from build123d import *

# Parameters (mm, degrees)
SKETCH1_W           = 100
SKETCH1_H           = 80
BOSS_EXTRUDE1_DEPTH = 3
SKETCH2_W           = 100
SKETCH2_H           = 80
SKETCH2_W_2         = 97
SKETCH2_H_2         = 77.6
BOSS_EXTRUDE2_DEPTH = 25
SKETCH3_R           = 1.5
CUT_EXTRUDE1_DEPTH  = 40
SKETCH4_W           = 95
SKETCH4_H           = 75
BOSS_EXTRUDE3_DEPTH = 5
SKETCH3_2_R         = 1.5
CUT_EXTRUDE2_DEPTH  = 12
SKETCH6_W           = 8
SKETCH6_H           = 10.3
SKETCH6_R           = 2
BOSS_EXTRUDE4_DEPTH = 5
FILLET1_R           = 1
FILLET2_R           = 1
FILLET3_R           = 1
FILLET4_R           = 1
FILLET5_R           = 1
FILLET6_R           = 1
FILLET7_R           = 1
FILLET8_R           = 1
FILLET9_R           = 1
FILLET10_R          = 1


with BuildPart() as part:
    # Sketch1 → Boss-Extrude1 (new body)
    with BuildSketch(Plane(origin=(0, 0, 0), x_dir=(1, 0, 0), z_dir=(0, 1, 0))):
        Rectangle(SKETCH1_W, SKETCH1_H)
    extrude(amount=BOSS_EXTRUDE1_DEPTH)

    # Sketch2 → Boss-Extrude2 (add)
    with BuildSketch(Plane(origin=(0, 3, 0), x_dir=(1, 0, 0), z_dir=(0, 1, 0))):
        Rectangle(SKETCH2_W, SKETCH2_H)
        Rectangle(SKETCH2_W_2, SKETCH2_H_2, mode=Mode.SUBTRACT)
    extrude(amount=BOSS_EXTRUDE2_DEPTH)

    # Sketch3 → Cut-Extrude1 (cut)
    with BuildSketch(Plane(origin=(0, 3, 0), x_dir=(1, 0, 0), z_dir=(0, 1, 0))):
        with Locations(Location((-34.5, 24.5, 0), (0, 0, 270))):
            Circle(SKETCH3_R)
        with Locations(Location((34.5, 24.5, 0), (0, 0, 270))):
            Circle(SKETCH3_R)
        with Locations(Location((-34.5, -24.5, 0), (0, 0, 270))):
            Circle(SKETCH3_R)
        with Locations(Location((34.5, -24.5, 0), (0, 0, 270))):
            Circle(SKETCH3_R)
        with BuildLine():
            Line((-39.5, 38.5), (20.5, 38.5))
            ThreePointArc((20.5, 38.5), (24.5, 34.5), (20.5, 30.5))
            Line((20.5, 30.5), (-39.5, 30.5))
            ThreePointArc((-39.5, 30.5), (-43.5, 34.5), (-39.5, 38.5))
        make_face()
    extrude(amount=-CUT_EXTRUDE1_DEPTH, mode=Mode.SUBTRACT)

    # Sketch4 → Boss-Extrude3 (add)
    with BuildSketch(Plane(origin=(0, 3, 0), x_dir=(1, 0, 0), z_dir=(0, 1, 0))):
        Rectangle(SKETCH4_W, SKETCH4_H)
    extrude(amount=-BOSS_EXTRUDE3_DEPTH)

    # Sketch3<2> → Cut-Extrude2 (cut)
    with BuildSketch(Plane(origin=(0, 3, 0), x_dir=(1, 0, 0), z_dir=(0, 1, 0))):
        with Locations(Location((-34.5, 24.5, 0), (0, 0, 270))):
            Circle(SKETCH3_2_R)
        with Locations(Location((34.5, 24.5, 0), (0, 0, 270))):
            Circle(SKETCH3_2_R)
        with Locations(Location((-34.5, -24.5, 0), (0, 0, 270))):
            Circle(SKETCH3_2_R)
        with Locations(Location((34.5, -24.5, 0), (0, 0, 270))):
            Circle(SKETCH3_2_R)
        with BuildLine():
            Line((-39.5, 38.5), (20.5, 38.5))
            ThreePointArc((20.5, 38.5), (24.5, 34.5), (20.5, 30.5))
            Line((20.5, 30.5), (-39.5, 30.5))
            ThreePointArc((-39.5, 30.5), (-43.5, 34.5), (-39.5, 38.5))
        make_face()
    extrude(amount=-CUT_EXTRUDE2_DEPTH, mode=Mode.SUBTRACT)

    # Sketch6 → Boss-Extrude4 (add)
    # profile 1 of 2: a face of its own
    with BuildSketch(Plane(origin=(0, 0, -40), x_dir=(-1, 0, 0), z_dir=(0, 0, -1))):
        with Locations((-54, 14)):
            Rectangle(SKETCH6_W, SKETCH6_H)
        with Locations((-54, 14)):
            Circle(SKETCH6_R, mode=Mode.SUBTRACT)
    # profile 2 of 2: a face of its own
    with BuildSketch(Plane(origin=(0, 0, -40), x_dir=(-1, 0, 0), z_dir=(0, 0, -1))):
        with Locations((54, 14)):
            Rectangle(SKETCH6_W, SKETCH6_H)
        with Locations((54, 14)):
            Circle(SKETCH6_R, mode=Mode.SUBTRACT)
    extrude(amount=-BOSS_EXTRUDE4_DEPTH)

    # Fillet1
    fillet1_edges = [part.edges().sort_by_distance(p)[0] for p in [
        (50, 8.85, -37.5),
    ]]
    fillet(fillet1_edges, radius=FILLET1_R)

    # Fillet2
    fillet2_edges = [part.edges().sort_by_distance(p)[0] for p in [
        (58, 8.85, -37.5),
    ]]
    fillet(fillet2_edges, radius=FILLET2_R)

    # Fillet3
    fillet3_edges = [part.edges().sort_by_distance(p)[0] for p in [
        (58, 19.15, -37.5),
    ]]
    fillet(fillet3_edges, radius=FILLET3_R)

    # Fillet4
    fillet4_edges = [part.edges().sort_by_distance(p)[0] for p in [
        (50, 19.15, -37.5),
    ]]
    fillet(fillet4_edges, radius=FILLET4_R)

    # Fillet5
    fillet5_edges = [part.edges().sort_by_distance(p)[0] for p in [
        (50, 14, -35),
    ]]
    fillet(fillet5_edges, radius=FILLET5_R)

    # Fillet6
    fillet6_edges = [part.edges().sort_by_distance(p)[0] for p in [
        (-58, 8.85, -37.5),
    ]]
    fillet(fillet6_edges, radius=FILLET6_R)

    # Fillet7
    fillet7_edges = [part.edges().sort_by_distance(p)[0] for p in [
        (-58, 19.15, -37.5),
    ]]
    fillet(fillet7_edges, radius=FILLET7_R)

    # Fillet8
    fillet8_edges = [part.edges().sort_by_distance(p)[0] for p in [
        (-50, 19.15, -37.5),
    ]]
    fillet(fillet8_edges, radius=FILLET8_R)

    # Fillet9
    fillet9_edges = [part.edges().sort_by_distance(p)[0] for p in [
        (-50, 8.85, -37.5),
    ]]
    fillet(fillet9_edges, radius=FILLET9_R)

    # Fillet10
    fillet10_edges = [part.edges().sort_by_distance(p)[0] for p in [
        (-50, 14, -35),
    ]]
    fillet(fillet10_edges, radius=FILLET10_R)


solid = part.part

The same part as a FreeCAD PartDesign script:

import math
import FreeCAD as App
import Part
import Sketcher
Q = App.Units.Quantity


def edges_at(feature, points):
    """Names of the edges that pass closest to the given points."""
    edges = feature.Shape.Edges
    near = lambda p: min(range(len(edges)), key=lambda i: edges[i].distToShape(Part.Vertex(*p))[0])
    return sorted({f"Edge{near(p) + 1}" for p in points})

doc = App.newDocument("Part")
body = doc.addObject("PartDesign::Body", "Body")

sketch1 = body.newObject("Sketcher::SketchObject", "Sketch")
sketch1.AttachmentSupport = (doc.getObject("XZ_Plane"), [""])
sketch1.MapMode = "FlatFace"
sketch1.addGeometry(Part.LineSegment(App.Vector(-50, -40, 0), App.Vector(-50, 40, 0)), False)
sketch1.addGeometry(Part.LineSegment(App.Vector(-50, 40, 0), App.Vector(50, 40, 0)), False)
sketch1.addGeometry(Part.LineSegment(App.Vector(50, 40, 0), App.Vector(50, -40, 0)), False)
sketch1.addGeometry(Part.LineSegment(App.Vector(50, -40, 0), App.Vector(-50, -40, 0)), False)
sketch1.addConstraint(Sketcher.Constraint("Coincident", 0, 2, 1, 1))
sketch1.addConstraint(Sketcher.Constraint("Coincident", 1, 2, 2, 1))
sketch1.addConstraint(Sketcher.Constraint("Coincident", 2, 2, 3, 1))
sketch1.addConstraint(Sketcher.Constraint("Coincident", 3, 2, 0, 1))
sketch1.addConstraint(Sketcher.Constraint("Vertical", 0))
sketch1.addConstraint(Sketcher.Constraint("Horizontal", 1))
sketch1.addConstraint(Sketcher.Constraint("Vertical", 2))
sketch1.addConstraint(Sketcher.Constraint("Horizontal", 3))
sketch1.addConstraint(Sketcher.Constraint("Symmetric", 0, 2, 2, 2, -1, 1))
sketch1.addConstraint(Sketcher.Constraint("DistanceX", 1, 1, 1, 2, Q("100 mm")))
sketch1.addConstraint(Sketcher.Constraint("DistanceY", 0, 1, 0, 2, Q("80 mm")))
pad1 = body.newObject("PartDesign::Pad", "Pad")
pad1.Profile = sketch1
pad1.Length = 3
pad1.Reversed = True

sketch2 = body.newObject("Sketcher::SketchObject", "Sketch001")
sketch2.AttachmentSupport = (doc.getObject("XZ_Plane"), [""])
sketch2.MapMode = "FlatFace"
sketch2.AttachmentOffset = App.Placement(App.Vector(0, 0, -3), App.Rotation())
sketch2.addGeometry(Part.LineSegment(App.Vector(-50, -40, 0), App.Vector(-50, 40, 0)), False)
sketch2.addGeometry(Part.LineSegment(App.Vector(-50, 40, 0), App.Vector(50, 40, 0)), False)
sketch2.addGeometry(Part.LineSegment(App.Vector(50, 40, 0), App.Vector(50, -40, 0)), False)
sketch2.addGeometry(Part.LineSegment(App.Vector(50, -40, 0), App.Vector(-50, -40, 0)), False)
sketch2.addGeometry(Part.LineSegment(App.Vector(48, 39, 0), App.Vector(-48, 39, 0)), False)
sketch2.addGeometry(Part.LineSegment(App.Vector(-48, 39, 0), App.Vector(-48, -39, 0)), False)
sketch2.addGeometry(Part.LineSegment(App.Vector(-48, -39, 0), App.Vector(48, -39, 0)), False)
sketch2.addGeometry(Part.LineSegment(App.Vector(48, -39, 0), App.Vector(48, 39, 0)), False)
sketch2.addConstraint(Sketcher.Constraint("Coincident", 0, 2, 1, 1))
sketch2.addConstraint(Sketcher.Constraint("Coincident", 1, 2, 2, 1))
sketch2.addConstraint(Sketcher.Constraint("Coincident", 2, 2, 3, 1))
sketch2.addConstraint(Sketcher.Constraint("Coincident", 3, 2, 0, 1))
sketch2.addConstraint(Sketcher.Constraint("Coincident", 4, 2, 5, 1))
sketch2.addConstraint(Sketcher.Constraint("Coincident", 5, 2, 6, 1))
sketch2.addConstraint(Sketcher.Constraint("Coincident", 6, 2, 7, 1))
sketch2.addConstraint(Sketcher.Constraint("Coincident", 7, 2, 4, 1))
sketch2.addConstraint(Sketcher.Constraint("Vertical", 0))
sketch2.addConstraint(Sketcher.Constraint("Horizontal", 1))
sketch2.addConstraint(Sketcher.Constraint("Vertical", 2))
sketch2.addConstraint(Sketcher.Constraint("Horizontal", 3))
sketch2.addConstraint(Sketcher.Constraint("Horizontal", 4))
sketch2.addConstraint(Sketcher.Constraint("Vertical", 5))
sketch2.addConstraint(Sketcher.Constraint("Horizontal", 6))
sketch2.addConstraint(Sketcher.Constraint("Vertical", 7))
sketch2.addConstraint(Sketcher.Constraint("Symmetric", 0, 2, 2, 2, -1, 1))
sketch2.addConstraint(Sketcher.Constraint("Symmetric", 4, 2, 6, 2, -1, 1))
sketch2.addConstraint(Sketcher.Constraint("DistanceX", 1, 1, 1, 2, Q("100 mm")))
sketch2.addConstraint(Sketcher.Constraint("DistanceX", 4, 2, 4, 1, Q("97 mm")))
sketch2.addConstraint(Sketcher.Constraint("DistanceY", 0, 1, 0, 2, Q("80 mm")))
sketch2.addConstraint(Sketcher.Constraint("DistanceY", 5, 2, 5, 1, Q("77.6 mm")))
pad2 = body.newObject("PartDesign::Pad", "Pad001")
pad2.Profile = sketch2
pad2.Length = 25
pad2.Reversed = True

sketch3 = body.newObject("Sketcher::SketchObject", "Sketch002")
sketch3.AttachmentSupport = (doc.getObject("XZ_Plane"), [""])
sketch3.MapMode = "FlatFace"
sketch3.AttachmentOffset = App.Placement(App.Vector(0, 0, -3), App.Rotation())
sketch3.addGeometry(Part.Circle(App.Vector(-34.5, -24.5, 0), App.Vector(0, 0, 1), 1.5), False)
sketch3.addGeometry(Part.Circle(App.Vector(34.5, -24.5, 0), App.Vector(0, 0, 1), 1.5), False)
sketch3.addGeometry(Part.Circle(App.Vector(-34.5, 24.5, 0), App.Vector(0, 0, 1), 1.5), False)
sketch3.addGeometry(Part.Circle(App.Vector(34.5, 24.5, 0), App.Vector(0, 0, 1), 1.5), False)
sketch3.addGeometry(Part.LineSegment(App.Vector(20.5, -38.5, 0), App.Vector(-39.5, -38.5, 0)), False)
sketch3.addGeometry(Part.ArcOfCircle(Part.Circle(App.Vector(-39.5, -34.5, 0), App.Vector(0, 0, 1), 4), math.radians(90), math.radians(270)), False)
sketch3.addGeometry(Part.LineSegment(App.Vector(-39.5, -30.5, 0), App.Vector(20.5, -30.5, 0)), False)
sketch3.addGeometry(Part.ArcOfCircle(Part.Circle(App.Vector(20.5, -34.5, 0), App.Vector(0, 0, 1), 4), math.radians(-90), math.radians(90)), False)
sketch3.addConstraint(Sketcher.Constraint("Tangent", 4, 2, 5, 2))
sketch3.addConstraint(Sketcher.Constraint("Tangent", 5, 1, 6, 1))
sketch3.addConstraint(Sketcher.Constraint("Tangent", 6, 2, 7, 2))
sketch3.addConstraint(Sketcher.Constraint("Tangent", 7, 1, 4, 1))
sketch3.addConstraint(Sketcher.Constraint("Horizontal", 4))
sketch3.addConstraint(Sketcher.Constraint("Horizontal", 6))
sketch3.addConstraint(Sketcher.Constraint("Equal", 0, 1))
sketch3.addConstraint(Sketcher.Constraint("Equal", 1, 2))
sketch3.addConstraint(Sketcher.Constraint("Equal", 2, 3))
sketch3.addConstraint(Sketcher.Constraint("Symmetric", 1, 3, 2, 3, -1, 1))
sketch3.addConstraint(Sketcher.Constraint("Symmetric", 0, 3, 3, 3, -1, 1))
sketch3.addConstraint(Sketcher.Constraint("Symmetric", 0, 3, 1, 3, -2))
sketch3.addConstraint(Sketcher.Constraint("Diameter", 0, Q("3 mm")))
sketch3.addConstraint(Sketcher.Constraint("Radius", 5, Q("4 mm")))
sketch3.addConstraint(Sketcher.Constraint("DistanceX", 4, 2, 4, 1, Q("60 mm")))
sketch3.addConstraint(Sketcher.Constraint("DistanceX", 0, 3, 1, 3, Q("69 mm")))
sketch3.addConstraint(Sketcher.Constraint("DistanceY", 0, 3, 2, 3, Q("49 mm")))
sketch3.addConstraint(Sketcher.Constraint("DistanceX", 5, 3, 0, 3, Q("5 mm")))
sketch3.addConstraint(Sketcher.Constraint("DistanceY", 5, 3, 0, 3, Q("10 mm")))
pocket1 = body.newObject("PartDesign::Pocket", "Pocket")
pocket1.Profile = sketch3
pocket1.Length = 40
pocket1.Reversed = True

sketch4 = body.newObject("Sketcher::SketchObject", "Sketch003")
sketch4.AttachmentSupport = (doc.getObject("XZ_Plane"), [""])
sketch4.MapMode = "FlatFace"
sketch4.AttachmentOffset = App.Placement(App.Vector(0, 0, -3), App.Rotation())
sketch4.addGeometry(Part.LineSegment(App.Vector(-48, -38, 0), App.Vector(-48, 38, 0)), False)
sketch4.addGeometry(Part.LineSegment(App.Vector(-48, 38, 0), App.Vector(48, 38, 0)), False)
sketch4.addGeometry(Part.LineSegment(App.Vector(48, 38, 0), App.Vector(48, -38, 0)), False)
sketch4.addGeometry(Part.LineSegment(App.Vector(48, -38, 0), App.Vector(-48, -38, 0)), False)
sketch4.addConstraint(Sketcher.Constraint("Coincident", 0, 2, 1, 1))
sketch4.addConstraint(Sketcher.Constraint("Coincident", 1, 2, 2, 1))
sketch4.addConstraint(Sketcher.Constraint("Coincident", 2, 2, 3, 1))
sketch4.addConstraint(Sketcher.Constraint("Coincident", 3, 2, 0, 1))
sketch4.addConstraint(Sketcher.Constraint("Vertical", 0))
sketch4.addConstraint(Sketcher.Constraint("Horizontal", 1))
sketch4.addConstraint(Sketcher.Constraint("Vertical", 2))
sketch4.addConstraint(Sketcher.Constraint("Horizontal", 3))
sketch4.addConstraint(Sketcher.Constraint("Symmetric", 0, 2, 2, 2, -1, 1))
sketch4.addConstraint(Sketcher.Constraint("DistanceX", 1, 1, 1, 2, Q("95 mm")))
sketch4.addConstraint(Sketcher.Constraint("DistanceY", 0, 1, 0, 2, Q("75 mm")))
pad3 = body.newObject("PartDesign::Pad", "Pad002")
pad3.Profile = sketch4
pad3.Length = 5

sketch5 = body.newObject("Sketcher::SketchObject", "Sketch004")
sketch5.AttachmentSupport = (doc.getObject("XZ_Plane"), [""])
sketch5.MapMode = "FlatFace"
sketch5.AttachmentOffset = App.Placement(App.Vector(0, 0, -3), App.Rotation())
sketch5.addGeometry(Part.Circle(App.Vector(-34.5, -24.5, 0), App.Vector(0, 0, 1), 1.5), False)
sketch5.addGeometry(Part.Circle(App.Vector(34.5, -24.5, 0), App.Vector(0, 0, 1), 1.5), False)
sketch5.addGeometry(Part.Circle(App.Vector(-34.5, 24.5, 0), App.Vector(0, 0, 1), 1.5), False)
sketch5.addGeometry(Part.Circle(App.Vector(34.5, 24.5, 0), App.Vector(0, 0, 1), 1.5), False)
sketch5.addGeometry(Part.LineSegment(App.Vector(20.5, -38.5, 0), App.Vector(-39.5, -38.5, 0)), False)
sketch5.addGeometry(Part.ArcOfCircle(Part.Circle(App.Vector(-39.5, -34.5, 0), App.Vector(0, 0, 1), 4), math.radians(90), math.radians(270)), False)
sketch5.addGeometry(Part.LineSegment(App.Vector(-39.5, -30.5, 0), App.Vector(20.5, -30.5, 0)), False)
sketch5.addGeometry(Part.ArcOfCircle(Part.Circle(App.Vector(20.5, -34.5, 0), App.Vector(0, 0, 1), 4), math.radians(-90), math.radians(90)), False)
sketch5.addConstraint(Sketcher.Constraint("Tangent", 4, 2, 5, 2))
sketch5.addConstraint(Sketcher.Constraint("Tangent", 5, 1, 6, 1))
sketch5.addConstraint(Sketcher.Constraint("Tangent", 6, 2, 7, 2))
sketch5.addConstraint(Sketcher.Constraint("Tangent", 7, 1, 4, 1))
sketch5.addConstraint(Sketcher.Constraint("Horizontal", 4))
sketch5.addConstraint(Sketcher.Constraint("Horizontal", 6))
sketch5.addConstraint(Sketcher.Constraint("Equal", 0, 1))
sketch5.addConstraint(Sketcher.Constraint("Equal", 1, 2))
sketch5.addConstraint(Sketcher.Constraint("Equal", 2, 3))
sketch5.addConstraint(Sketcher.Constraint("Symmetric", 1, 3, 2, 3, -1, 1))
sketch5.addConstraint(Sketcher.Constraint("Symmetric", 0, 3, 3, 3, -1, 1))
sketch5.addConstraint(Sketcher.Constraint("Symmetric", 0, 3, 1, 3, -2))
sketch5.addConstraint(Sketcher.Constraint("Diameter", 0, Q("3 mm")))
sketch5.addConstraint(Sketcher.Constraint("Radius", 5, Q("4 mm")))
sketch5.addConstraint(Sketcher.Constraint("DistanceX", 4, 2, 4, 1, Q("60 mm")))
sketch5.addConstraint(Sketcher.Constraint("DistanceX", 0, 3, 1, 3, Q("69 mm")))
sketch5.addConstraint(Sketcher.Constraint("DistanceY", 0, 3, 2, 3, Q("49 mm")))
sketch5.addConstraint(Sketcher.Constraint("DistanceX", 5, 3, 0, 3, Q("5 mm")))
sketch5.addConstraint(Sketcher.Constraint("DistanceY", 5, 3, 0, 3, Q("10 mm")))
pocket2 = body.newObject("PartDesign::Pocket", "Pocket001")
pocket2.Profile = sketch5
pocket2.Length = 12
pocket2.Reversed = True

sketch6 = body.newObject("Sketcher::SketchObject", "Sketch005")
sketch6.AttachmentSupport = (doc.getObject("XY_Plane"), [""])
sketch6.MapMode = "FlatFace"
sketch6.AttachmentOffset = App.Placement(App.Vector(0, 0, -40), App.Rotation())
sketch6.addGeometry(Part.LineSegment(App.Vector(58, 19.1, 0), App.Vector(58, 8.8, 0)), False)
sketch6.addGeometry(Part.LineSegment(App.Vector(58, 8.8, 0), App.Vector(50, 8.8, 0)), False)
sketch6.addGeometry(Part.LineSegment(App.Vector(50, 8.8, 0), App.Vector(50, 19.1, 0)), False)
sketch6.addGeometry(Part.LineSegment(App.Vector(50, 19.1, 0), App.Vector(58, 19.1, 0)), False)
sketch6.addGeometry(Part.Circle(App.Vector(54, 14, 0), App.Vector(0, 0, 1), 2), False)
sketch6.addGeometry(Part.LineSegment(App.Vector(-50, 19.1, 0), App.Vector(-50, 8.8, 0)), False)
sketch6.addGeometry(Part.LineSegment(App.Vector(-50, 8.8, 0), App.Vector(-58, 8.8, 0)), False)
sketch6.addGeometry(Part.LineSegment(App.Vector(-58, 8.8, 0), App.Vector(-58, 19.1, 0)), False)
sketch6.addGeometry(Part.LineSegment(App.Vector(-58, 19.1, 0), App.Vector(-50, 19.1, 0)), False)
sketch6.addGeometry(Part.Circle(App.Vector(-54, 14, 0), App.Vector(0, 0, 1), 2), False)
sketch6.addConstraint(Sketcher.Constraint("Coincident", 0, 2, 1, 1))
sketch6.addConstraint(Sketcher.Constraint("Coincident", 1, 2, 2, 1))
sketch6.addConstraint(Sketcher.Constraint("Coincident", 2, 2, 3, 1))
sketch6.addConstraint(Sketcher.Constraint("Coincident", 3, 2, 0, 1))
sketch6.addConstraint(Sketcher.Constraint("Coincident", 5, 2, 6, 1))
sketch6.addConstraint(Sketcher.Constraint("Coincident", 6, 2, 7, 1))
sketch6.addConstraint(Sketcher.Constraint("Coincident", 7, 2, 8, 1))
sketch6.addConstraint(Sketcher.Constraint("Coincident", 8, 2, 5, 1))
sketch6.addConstraint(Sketcher.Constraint("Vertical", 0))
sketch6.addConstraint(Sketcher.Constraint("Horizontal", 1))
sketch6.addConstraint(Sketcher.Constraint("Vertical", 2))
sketch6.addConstraint(Sketcher.Constraint("Horizontal", 3))
sketch6.addConstraint(Sketcher.Constraint("Vertical", 5))
sketch6.addConstraint(Sketcher.Constraint("Horizontal", 6))
sketch6.addConstraint(Sketcher.Constraint("Vertical", 7))
sketch6.addConstraint(Sketcher.Constraint("Horizontal", 8))
sketch6.addConstraint(Sketcher.Constraint("Equal", 4, 9))
sketch6.addConstraint(Sketcher.Constraint("Symmetric", 4, 3, 9, 3, -2))
sketch6.addConstraint(Sketcher.Constraint("Symmetric", 1, 2, 5, 2, -2))
sketch6.addConstraint(Sketcher.Constraint("Symmetric", 3, 2, 7, 2, -2))
sketch6.addConstraint(Sketcher.Constraint("Diameter", 4, Q("4 mm")))
sketch6.addConstraint(Sketcher.Constraint("DistanceX", 1, 2, 1, 1, Q("8 mm")))
sketch6.addConstraint(Sketcher.Constraint("DistanceY", 0, 2, 0, 1, Q("10.3 mm")))
sketch6.addConstraint(Sketcher.Constraint("DistanceX", -1, 1, 4, 3, Q("54 mm")))
sketch6.addConstraint(Sketcher.Constraint("DistanceY", -1, 1, 4, 3, Q("14 mm")))
sketch6.addConstraint(Sketcher.Constraint("DistanceX", -1, 1, 0, 2, Q("58 mm")))
sketch6.addConstraint(Sketcher.Constraint("DistanceY", -1, 1, 0, 2, Q("8.85 mm")))
pad4 = body.newObject("PartDesign::Pad", "Pad003")
pad4.Profile = sketch6
pad4.Length = 5
doc.recompute()

fillet = body.newObject("PartDesign::Fillet", "Fillet")
fillet.Base = (pad4, edges_at(pad4, [(50, 8.85, -37.5)]))
fillet.Radius = 1
doc.recompute()

fillet2 = body.newObject("PartDesign::Fillet", "Fillet001")
fillet2.Base = (fillet, edges_at(fillet, [(58, 8.85, -37.5)]))
fillet2.Radius = 1
doc.recompute()

fillet3 = body.newObject("PartDesign::Fillet", "Fillet002")
fillet3.Base = (fillet2, edges_at(fillet2, [(58, 19.15, -37.5)]))
fillet3.Radius = 1
doc.recompute()

fillet4 = body.newObject("PartDesign::Fillet", "Fillet003")
fillet4.Base = (fillet3, edges_at(fillet3, [(50, 19.15, -37.5)]))
fillet4.Radius = 1
doc.recompute()

fillet5 = body.newObject("PartDesign::Fillet", "Fillet004")
fillet5.Base = (fillet4, edges_at(fillet4, [(50, 14, -35)]))
fillet5.Radius = 1
doc.recompute()

fillet6 = body.newObject("PartDesign::Fillet", "Fillet005")
fillet6.Base = (fillet5, edges_at(fillet5, [(-58, 8.85, -37.5)]))
fillet6.Radius = 1
doc.recompute()

fillet7 = body.newObject("PartDesign::Fillet", "Fillet006")
fillet7.Base = (fillet6, edges_at(fillet6, [(-58, 19.15, -37.5)]))
fillet7.Radius = 1
doc.recompute()

fillet8 = body.newObject("PartDesign::Fillet", "Fillet007")
fillet8.Base = (fillet7, edges_at(fillet7, [(-50, 19.15, -37.5)]))
fillet8.Radius = 1
doc.recompute()

fillet9 = body.newObject("PartDesign::Fillet", "Fillet008")
fillet9.Base = (fillet8, edges_at(fillet8, [(-50, 8.85, -37.5)]))
fillet9.Radius = 1
doc.recompute()

fillet10 = body.newObject("PartDesign::Fillet", "Fillet009")
fillet10.Base = (fillet9, edges_at(fillet9, [(-50, 14, -35)]))
fillet10.Radius = 1

doc.recompute()
